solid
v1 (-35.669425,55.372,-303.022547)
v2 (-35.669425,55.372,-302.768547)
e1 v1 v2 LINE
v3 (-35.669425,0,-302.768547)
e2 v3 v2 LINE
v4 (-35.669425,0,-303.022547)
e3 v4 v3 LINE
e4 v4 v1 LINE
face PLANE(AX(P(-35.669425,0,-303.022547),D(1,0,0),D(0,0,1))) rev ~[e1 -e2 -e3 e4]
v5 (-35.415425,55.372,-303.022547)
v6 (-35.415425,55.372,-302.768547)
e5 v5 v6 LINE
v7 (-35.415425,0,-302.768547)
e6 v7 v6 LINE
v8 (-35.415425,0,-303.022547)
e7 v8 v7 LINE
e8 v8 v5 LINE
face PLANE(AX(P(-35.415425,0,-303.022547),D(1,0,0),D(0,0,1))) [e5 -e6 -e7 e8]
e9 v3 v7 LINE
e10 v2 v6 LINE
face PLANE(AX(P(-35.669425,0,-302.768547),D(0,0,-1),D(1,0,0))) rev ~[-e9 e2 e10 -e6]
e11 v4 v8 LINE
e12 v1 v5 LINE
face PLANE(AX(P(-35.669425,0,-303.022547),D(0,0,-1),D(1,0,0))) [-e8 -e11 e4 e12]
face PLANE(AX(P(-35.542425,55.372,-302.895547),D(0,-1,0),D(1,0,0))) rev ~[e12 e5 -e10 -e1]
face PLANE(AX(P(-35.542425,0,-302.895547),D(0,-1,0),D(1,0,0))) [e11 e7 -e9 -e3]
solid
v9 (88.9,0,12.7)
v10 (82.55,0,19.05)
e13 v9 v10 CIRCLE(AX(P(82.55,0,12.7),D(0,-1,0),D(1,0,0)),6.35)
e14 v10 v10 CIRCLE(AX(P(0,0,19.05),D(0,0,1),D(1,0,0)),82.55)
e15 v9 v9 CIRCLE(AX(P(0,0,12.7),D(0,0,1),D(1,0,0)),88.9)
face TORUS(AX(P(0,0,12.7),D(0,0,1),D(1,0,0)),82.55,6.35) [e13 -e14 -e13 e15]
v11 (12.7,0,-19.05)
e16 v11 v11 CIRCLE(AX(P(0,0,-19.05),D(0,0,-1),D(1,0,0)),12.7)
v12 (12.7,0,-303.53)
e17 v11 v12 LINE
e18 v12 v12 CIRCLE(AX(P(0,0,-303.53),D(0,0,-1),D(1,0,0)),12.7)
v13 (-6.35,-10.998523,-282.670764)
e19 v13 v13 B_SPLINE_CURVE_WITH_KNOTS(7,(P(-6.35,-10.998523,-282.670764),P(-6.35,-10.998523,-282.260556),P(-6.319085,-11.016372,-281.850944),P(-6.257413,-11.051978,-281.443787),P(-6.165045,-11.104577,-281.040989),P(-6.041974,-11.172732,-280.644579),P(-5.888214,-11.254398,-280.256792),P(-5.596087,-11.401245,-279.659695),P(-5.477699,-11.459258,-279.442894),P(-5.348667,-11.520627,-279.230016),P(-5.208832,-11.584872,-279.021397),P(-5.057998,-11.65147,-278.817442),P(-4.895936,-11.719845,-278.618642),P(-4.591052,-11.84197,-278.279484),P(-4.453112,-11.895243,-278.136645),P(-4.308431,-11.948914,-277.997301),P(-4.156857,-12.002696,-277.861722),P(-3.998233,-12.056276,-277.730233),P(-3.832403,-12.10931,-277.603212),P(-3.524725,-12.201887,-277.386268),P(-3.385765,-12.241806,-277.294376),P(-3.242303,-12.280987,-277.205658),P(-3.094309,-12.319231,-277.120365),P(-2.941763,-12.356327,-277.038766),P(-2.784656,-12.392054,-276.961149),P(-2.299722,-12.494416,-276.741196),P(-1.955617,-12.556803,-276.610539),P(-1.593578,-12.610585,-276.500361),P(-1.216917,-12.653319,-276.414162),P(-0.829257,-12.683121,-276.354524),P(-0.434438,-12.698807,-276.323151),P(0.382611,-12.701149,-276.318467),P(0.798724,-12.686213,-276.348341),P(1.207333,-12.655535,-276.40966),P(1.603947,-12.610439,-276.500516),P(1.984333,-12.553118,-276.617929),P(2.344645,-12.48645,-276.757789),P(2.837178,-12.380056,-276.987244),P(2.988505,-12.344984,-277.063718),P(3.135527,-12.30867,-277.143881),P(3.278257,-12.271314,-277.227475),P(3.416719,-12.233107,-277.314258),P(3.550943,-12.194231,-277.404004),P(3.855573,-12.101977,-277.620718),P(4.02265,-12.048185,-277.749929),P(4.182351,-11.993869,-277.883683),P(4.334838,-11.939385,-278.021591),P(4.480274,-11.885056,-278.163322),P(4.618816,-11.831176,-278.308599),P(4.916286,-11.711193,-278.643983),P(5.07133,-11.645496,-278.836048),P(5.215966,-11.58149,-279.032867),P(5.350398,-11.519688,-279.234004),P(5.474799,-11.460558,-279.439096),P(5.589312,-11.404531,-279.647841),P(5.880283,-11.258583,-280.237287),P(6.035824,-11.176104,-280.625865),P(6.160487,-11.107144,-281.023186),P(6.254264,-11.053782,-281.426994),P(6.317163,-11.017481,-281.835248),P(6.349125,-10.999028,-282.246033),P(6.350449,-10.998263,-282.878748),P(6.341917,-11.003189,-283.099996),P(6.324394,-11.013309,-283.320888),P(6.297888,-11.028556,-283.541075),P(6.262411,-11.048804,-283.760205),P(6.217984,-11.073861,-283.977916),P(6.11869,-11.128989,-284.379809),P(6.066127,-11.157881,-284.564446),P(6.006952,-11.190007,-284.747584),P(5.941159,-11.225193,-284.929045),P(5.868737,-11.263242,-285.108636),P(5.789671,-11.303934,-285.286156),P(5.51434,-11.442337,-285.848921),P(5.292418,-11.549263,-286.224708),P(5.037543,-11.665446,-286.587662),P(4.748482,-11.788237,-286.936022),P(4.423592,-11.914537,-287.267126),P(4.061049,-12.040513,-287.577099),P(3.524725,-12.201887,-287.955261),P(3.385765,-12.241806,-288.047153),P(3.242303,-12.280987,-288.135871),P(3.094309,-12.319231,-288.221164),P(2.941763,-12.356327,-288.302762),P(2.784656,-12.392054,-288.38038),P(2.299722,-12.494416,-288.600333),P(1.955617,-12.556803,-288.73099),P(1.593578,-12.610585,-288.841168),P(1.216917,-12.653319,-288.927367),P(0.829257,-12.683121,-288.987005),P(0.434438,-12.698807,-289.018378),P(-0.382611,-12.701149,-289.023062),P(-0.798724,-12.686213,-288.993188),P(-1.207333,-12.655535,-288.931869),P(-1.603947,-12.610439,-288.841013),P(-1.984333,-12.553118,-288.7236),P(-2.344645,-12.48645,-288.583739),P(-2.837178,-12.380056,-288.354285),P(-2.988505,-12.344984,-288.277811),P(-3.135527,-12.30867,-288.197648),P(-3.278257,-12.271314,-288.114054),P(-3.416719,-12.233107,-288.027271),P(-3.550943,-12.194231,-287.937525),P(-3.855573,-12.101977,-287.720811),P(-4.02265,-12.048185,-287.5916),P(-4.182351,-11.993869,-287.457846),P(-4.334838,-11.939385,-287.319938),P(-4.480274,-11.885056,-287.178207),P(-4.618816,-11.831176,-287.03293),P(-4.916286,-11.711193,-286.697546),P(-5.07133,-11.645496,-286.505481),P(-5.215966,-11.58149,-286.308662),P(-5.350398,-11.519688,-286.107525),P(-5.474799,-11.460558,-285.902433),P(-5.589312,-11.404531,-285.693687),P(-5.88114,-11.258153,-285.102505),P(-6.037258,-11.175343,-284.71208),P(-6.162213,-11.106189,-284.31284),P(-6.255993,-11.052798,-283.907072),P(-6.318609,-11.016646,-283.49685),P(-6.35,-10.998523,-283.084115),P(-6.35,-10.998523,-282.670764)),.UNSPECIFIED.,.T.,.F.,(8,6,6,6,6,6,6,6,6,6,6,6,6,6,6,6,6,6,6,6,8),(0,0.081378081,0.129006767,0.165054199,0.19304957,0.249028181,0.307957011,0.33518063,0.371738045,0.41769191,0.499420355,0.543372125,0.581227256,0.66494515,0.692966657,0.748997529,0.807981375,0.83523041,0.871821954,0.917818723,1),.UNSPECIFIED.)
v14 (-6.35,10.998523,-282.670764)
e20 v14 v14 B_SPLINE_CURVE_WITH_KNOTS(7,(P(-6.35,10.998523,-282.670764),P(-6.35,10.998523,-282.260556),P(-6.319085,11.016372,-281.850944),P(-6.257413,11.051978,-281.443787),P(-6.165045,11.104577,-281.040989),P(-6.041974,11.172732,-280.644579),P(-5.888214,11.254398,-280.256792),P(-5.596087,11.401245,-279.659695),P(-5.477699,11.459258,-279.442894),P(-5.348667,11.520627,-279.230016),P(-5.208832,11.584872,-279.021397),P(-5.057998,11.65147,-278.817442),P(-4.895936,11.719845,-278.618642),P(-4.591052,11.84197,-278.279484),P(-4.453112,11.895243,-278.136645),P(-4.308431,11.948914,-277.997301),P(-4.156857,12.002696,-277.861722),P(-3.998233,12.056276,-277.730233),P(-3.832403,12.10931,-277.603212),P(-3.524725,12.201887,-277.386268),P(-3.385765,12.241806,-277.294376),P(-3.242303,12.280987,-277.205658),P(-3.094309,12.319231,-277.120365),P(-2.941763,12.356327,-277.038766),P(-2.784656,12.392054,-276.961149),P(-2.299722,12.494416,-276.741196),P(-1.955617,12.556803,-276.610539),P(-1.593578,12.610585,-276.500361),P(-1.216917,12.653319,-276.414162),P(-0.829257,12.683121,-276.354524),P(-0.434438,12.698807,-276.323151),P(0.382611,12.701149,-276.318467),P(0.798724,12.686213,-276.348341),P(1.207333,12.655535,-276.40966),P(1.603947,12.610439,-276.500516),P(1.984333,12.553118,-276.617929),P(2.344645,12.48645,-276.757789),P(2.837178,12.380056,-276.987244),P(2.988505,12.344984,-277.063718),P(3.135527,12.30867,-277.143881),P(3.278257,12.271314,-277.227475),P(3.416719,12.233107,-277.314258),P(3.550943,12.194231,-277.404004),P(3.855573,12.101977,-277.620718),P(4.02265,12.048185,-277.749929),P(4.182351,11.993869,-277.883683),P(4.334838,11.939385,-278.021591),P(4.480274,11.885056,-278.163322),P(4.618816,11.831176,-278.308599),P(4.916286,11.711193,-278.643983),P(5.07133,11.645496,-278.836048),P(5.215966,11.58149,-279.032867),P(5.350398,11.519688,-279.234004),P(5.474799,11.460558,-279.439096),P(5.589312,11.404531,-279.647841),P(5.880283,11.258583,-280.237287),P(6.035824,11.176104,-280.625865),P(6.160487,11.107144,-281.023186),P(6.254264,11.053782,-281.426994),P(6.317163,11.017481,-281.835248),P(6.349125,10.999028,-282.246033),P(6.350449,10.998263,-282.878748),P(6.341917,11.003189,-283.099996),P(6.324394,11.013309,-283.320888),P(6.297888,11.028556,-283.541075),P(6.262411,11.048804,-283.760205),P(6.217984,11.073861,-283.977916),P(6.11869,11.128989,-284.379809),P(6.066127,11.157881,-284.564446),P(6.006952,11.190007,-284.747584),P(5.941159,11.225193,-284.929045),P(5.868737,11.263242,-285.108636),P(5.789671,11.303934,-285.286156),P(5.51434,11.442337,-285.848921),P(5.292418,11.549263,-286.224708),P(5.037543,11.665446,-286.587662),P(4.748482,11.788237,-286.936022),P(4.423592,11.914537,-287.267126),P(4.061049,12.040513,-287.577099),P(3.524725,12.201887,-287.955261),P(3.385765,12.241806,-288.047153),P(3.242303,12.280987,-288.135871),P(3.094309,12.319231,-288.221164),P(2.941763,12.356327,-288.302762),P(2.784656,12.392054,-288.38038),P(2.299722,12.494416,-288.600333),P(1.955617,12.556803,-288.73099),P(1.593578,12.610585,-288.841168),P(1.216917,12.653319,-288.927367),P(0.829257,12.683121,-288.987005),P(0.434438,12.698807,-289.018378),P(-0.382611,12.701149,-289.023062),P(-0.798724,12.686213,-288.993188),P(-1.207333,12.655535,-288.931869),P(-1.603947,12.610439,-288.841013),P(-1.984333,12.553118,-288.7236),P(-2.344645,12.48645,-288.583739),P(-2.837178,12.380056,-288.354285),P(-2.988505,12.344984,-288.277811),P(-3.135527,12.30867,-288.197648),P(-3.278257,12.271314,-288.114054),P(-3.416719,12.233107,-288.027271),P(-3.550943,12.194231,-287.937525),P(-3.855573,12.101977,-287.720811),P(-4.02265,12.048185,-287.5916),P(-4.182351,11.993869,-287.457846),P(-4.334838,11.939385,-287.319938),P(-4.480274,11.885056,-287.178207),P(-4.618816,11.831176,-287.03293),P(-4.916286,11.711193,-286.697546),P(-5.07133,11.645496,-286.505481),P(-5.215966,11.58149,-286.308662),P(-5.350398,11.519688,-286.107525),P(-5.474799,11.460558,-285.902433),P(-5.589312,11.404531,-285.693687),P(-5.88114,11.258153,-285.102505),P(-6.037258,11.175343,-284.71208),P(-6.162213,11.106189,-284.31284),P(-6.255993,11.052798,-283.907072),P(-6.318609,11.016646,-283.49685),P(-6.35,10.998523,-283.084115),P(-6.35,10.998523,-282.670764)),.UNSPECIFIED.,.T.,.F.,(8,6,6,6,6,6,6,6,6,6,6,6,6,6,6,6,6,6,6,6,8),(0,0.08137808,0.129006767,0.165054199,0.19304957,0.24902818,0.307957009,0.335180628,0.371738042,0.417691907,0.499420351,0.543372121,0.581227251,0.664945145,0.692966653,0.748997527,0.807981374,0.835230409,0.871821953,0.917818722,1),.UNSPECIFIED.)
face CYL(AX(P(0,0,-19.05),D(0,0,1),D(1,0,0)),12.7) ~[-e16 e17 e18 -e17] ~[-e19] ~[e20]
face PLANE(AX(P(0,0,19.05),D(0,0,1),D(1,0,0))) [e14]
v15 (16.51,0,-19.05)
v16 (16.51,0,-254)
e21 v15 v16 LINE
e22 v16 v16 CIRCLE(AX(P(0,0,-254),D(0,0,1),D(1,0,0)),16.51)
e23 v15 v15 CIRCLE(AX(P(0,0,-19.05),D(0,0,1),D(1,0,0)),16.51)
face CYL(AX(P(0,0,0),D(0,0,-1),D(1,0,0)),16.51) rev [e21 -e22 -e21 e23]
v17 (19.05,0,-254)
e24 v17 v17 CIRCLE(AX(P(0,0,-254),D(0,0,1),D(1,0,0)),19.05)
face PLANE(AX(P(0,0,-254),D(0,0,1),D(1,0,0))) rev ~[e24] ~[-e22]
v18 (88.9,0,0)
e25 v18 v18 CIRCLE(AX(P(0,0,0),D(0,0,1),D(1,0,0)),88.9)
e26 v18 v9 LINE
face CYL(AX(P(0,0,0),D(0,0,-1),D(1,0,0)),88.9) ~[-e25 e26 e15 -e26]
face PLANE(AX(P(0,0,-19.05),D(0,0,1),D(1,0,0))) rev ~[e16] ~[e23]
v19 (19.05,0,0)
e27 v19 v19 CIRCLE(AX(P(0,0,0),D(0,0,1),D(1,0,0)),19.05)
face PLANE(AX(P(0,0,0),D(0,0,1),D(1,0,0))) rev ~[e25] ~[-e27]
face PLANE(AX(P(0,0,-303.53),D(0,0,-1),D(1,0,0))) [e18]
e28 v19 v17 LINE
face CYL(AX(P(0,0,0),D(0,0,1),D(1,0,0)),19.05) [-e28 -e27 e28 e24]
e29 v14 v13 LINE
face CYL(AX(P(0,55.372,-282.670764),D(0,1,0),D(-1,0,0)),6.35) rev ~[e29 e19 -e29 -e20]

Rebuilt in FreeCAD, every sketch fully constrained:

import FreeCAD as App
import Part
import Sketcher
Q = App.Units.Quantity


def edges_at(feature, points):
    """Names of the edges that pass closest to the given points."""
    edges = feature.Shape.Edges
    near = lambda p: min(range(len(edges)), key=lambda i: edges[i].distToShape(Part.Vertex(*p))[0])
    return sorted({f"Edge{near(p) + 1}" for p in points})


def add_polygon(sketch, points):
    """Adds a closed chain of lines whose ends are joined by coincident constraints."""
    first, n = sketch.GeometryCount, len(points)
    for a, b in zip(points, points[1:] + points[:1]):
        sketch.addGeometry(Part.LineSegment(App.Vector(*a, 0), App.Vector(*b, 0)), False)
    for i in range(n):
        sketch.addConstraint(Sketcher.Constraint("Coincident", first + i, 2, first + (i + 1) % n, 1))

doc = App.newDocument("Part")
params = doc.addObject("Spreadsheet::Sheet", "Params")
for row, (alias, value) in enumerate([
    ("sketch1_diameter", "7 in"),
    ("sketch1_diameter2", "1.5 in"),
    ("pad1_length", "0.75 in"),
    ("sketch2_diameter", "1.5 in"),
    ("sketch2_diameter2", "1.3 in"),
    ("pad2_length", "10 in"),
    ("pad2_length2", "0.75 in"),
    ("fillet_radius", "0.25 in"),
    ("sketch3_diameter", "1.3 in"),
    ("pad3_length", "0.75 in"),
    ("pad3_length2", "0.75 in"),
    ("sketch4_diameter", "1 in"),
    ("pad4_length", "11.2 in"),
    ("sketch5_diameter", "0.5 in"),
    ("sketch6_width", "0.01 in"),
    ("pad5_length", "2.18 in"),
], start=1):
    params.set(f"A{row}", alias)
    params.set(f"B{row}", "=" + value)
    params.setAlias(f"B{row}", alias)

body = doc.addObject("PartDesign::Body", "Body")

# Sketch on XY plane
sketch1 = doc.addObject("Sketcher::SketchObject", "Sketch")
body.addObject(sketch1)
sketch1.AttachmentSupport = (doc.XY_Plane, [""])
sketch1.MapMode = "FlatFace"
sketch1.addGeometry(Part.Circle(App.Vector(0, 0, 0), App.Vector(0, 0, 1), 88.9), False)
sketch1.addGeometry(Part.Circle(App.Vector(0, 0, 0), App.Vector(0, 0, 1), 19.05), False)
sketch1.addConstraint(Sketcher.Constraint("Coincident", 0, 3, -1, 1))
sketch1.addConstraint(Sketcher.Constraint("Coincident", 1, 3, -1, 1))
sketch1.addConstraint(Sketcher.Constraint("Diameter", 0, Q("7 in")))
sketch1.addConstraint(Sketcher.Constraint("Diameter", 1, Q("1.5 in")))
sketch1.setExpression("Constraints[2]", "Params.sketch1_diameter")
sketch1.setExpression("Constraints[3]", "Params.sketch1_diameter2")
pad1 = doc.addObject("PartDesign::Pad", "Pad")
body.addObject(pad1)
pad1.Profile = sketch1
pad1.setExpression("Length", "Params.pad1_length")

# Sketch on XY plane
sketch2 = doc.addObject("Sketcher::SketchObject", "Sketch001")
body.addObject(sketch2)
sketch2.AttachmentSupport = (doc.XY_Plane, [""])
sketch2.MapMode = "FlatFace"
sketch2.addGeometry(Part.Circle(App.Vector(0, 0, 0), App.Vector(0, 0, 1), 19.05), False)
sketch2.addGeometry(Part.Circle(App.Vector(0, 0, 0), App.Vector(0, 0, 1), 16.51), False)
sketch2.addConstraint(Sketcher.Constraint("Coincident", 0, 3, -1, 1))
sketch2.addConstraint(Sketcher.Constraint("Coincident", 1, 3, -1, 1))
sketch2.addConstraint(Sketcher.Constraint("Diameter", 0, Q("1.5 in")))
sketch2.addConstraint(Sketcher.Constraint("Diameter", 1, Q("1.3 in")))
sketch2.setExpression("Constraints[2]", "Params.sketch2_diameter")
sketch2.setExpression("Constraints[3]", "Params.sketch2_diameter2")
pad2 = doc.addObject("PartDesign::Pad", "Pad001")
body.addObject(pad2)
pad2.Profile = sketch2
pad2.Type = "TwoLengths"
pad2.setExpression("Length", "Params.pad2_length")
pad2.setExpression("Length2", "Params.pad2_length2")
pad2.Reversed = True
doc.recompute()

fillet = doc.addObject("PartDesign::Fillet", "Fillet")
body.addObject(fillet)
fillet.Base = (pad2, edges_at(pad2, [(-88.9, 0, 19.05)]))
fillet.setExpression("Radius", "Params.fillet_radius")

# Sketch on XY plane
sketch3 = doc.addObject("Sketcher::SketchObject", "Sketch002")
body.addObject(sketch3)
sketch3.AttachmentSupport = (doc.XY_Plane, [""])
sketch3.MapMode = "FlatFace"
sketch3.addGeometry(Part.Circle(App.Vector(0, 0, 0), App.Vector(0, 0, 1), 16.51), False)
sketch3.addConstraint(Sketcher.Constraint("Coincident", 0, 3, -1, 1))
sketch3.addConstraint(Sketcher.Constraint("Diameter", 0, Q("1.3 in")))
sketch3.setExpression("Constraints[1]", "Params.sketch3_diameter")
pad3 = doc.addObject("PartDesign::Pad", "Pad002")
body.addObject(pad3)
pad3.Profile = sketch3
pad3.Type = "TwoLengths"
pad3.setExpression("Length", "Params.pad3_length")
pad3.setExpression("Length2", "Params.pad3_length2")

# Sketch on XY plane
sketch4 = doc.addObject("Sketcher::SketchObject", "Sketch003")
body.addObject(sketch4)
sketch4.AttachmentSupport = (doc.XY_Plane, [""])
sketch4.MapMode = "FlatFace"
sketch4.AttachmentOffset = App.Placement(App.Vector(0, 0, -0.75 * 25.4), App.Rotation())
sketch4.addGeometry(Part.Circle(App.Vector(0, 0, 0), App.Vector(0, 0, 1), 12.7), False)
sketch4.addConstraint(Sketcher.Constraint("Coincident", 0, 3, -1, 1))
sketch4.addConstraint(Sketcher.Constraint("Diameter", 0, Q("1 in")))
sketch4.setExpression("Constraints[1]", "Params.sketch4_diameter")
pad4 = doc.addObject("PartDesign::Pad", "Pad003")
body.addObject(pad4)
pad4.Profile = sketch4
pad4.setExpression("Length", "Params.pad4_length")
pad4.Reversed = True

# Sketch on XZ plane
sketch5 = doc.addObject("Sketcher::SketchObject", "Sketch004")
body.addObject(sketch5)
sketch5.AttachmentSupport = (doc.XZ_Plane, [""])
sketch5.MapMode = "FlatFace"
sketch5.AttachmentOffset = App.Placement(App.Vector(0, 0, -2.18 * 25.4), App.Rotation())
sketch5.addGeometry(Part.Circle(App.Vector(0, -282.670764, 0), App.Vector(0, 0, 1), 6.35), False)
sketch5.addConstraint(Sketcher.Constraint("PointOnObject", 0, 3, -2))
sketch5.addConstraint(Sketcher.Constraint("Diameter", 0, Q("0.5 in")))
sketch5.addConstraint(Sketcher.Constraint("DistanceY", 0, 3, -1, 1, Q("282.670764 mm")))
sketch5.setExpression("Constraints[1]", "Params.sketch5_diameter")
pocket1 = doc.addObject("PartDesign::Pocket", "Pocket")
body.addObject(pocket1)
pocket1.Profile = sketch5
pocket1.Type = "ThroughAll"
pocket1.Reversed = True
body2 = doc.addObject("PartDesign::Body", "Body001")

# Sketch on XZ plane
sketch6 = doc.addObject("Sketcher::SketchObject", "Sketch005")
body2.addObject(sketch6)
sketch6.AttachmentSupport = (doc.getObject("XZ_Plane001"), [""])
sketch6.MapMode = "FlatFace"
add_polygon(sketch6, [(-35.669425, -302.768547), (-35.669425, -303.022547), (-35.415425, -303.022547), (-35.415425, -302.768547)])  # lines 0-3
sketch6.addConstraint(Sketcher.Constraint("Vertical", 0))
sketch6.addConstraint(Sketcher.Constraint("Horizontal", 1))
sketch6.addConstraint(Sketcher.Constraint("Vertical", 2))
sketch6.addConstraint(Sketcher.Constraint("Horizontal", 3))
sketch6.addConstraint(Sketcher.Constraint("Equal", 3, 0))
sketch6.addConstraint(Sketcher.Constraint("DistanceX", 1, 1, 1, 2, Q("0.01 in")))
sketch6.addConstraint(Sketcher.Constraint("DistanceX", 0, 2, -1, 1, Q("35.669425 mm")))
sketch6.addConstraint(Sketcher.Constraint("DistanceY", 0, 2, -1, 1, Q("303.022547 mm")))
sketch6.setExpression("Constraints[9]", "Params.sketch6_width")
pad5 = doc.addObject("PartDesign::Pad", "Pad004")
body2.addObject(pad5)
pad5.Profile = sketch6
pad5.setExpression("Length", "Params.pad5_length")
pad5.Reversed = True

doc.recompute()
